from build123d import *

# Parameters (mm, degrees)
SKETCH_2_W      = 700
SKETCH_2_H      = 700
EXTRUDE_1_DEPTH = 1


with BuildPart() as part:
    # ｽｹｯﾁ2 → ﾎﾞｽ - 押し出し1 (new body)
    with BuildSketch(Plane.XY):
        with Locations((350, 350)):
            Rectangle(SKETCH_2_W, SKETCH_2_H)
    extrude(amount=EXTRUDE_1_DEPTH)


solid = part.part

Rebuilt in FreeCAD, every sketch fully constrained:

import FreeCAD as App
import Part
import Sketcher
Q = App.Units.Quantity


def add_polygon(sketch, points):
    """Adds a closed chain of lines whose ends are joined by coincident constraints."""
    first, n = sketch.GeometryCount, len(points)
    for a, b in zip(points, points[1:] + points[:1]):
        sketch.addGeometry(Part.LineSegment(App.Vector(*a, 0), App.Vector(*b, 0)), False)
    for i in range(n):
        sketch.addConstraint(Sketcher.Constraint("Coincident", first + i, 2, first + (i + 1) % n, 1))

doc = App.newDocument("Part")
body = doc.addObject("PartDesign::Body", "Body")

# Sketch on XY plane
sketch1 = doc.addObject("Sketcher::SketchObject", "Sketch")
body.addObject(sketch1)
sketch1.AttachmentSupport = (doc.XY_Plane, [""])
sketch1.MapMode = "FlatFace"
add_polygon(sketch1, [(0, 700), (0, 0), (700, 0), (700, 700)])  # lines 0-3
sketch1.addConstraint(Sketcher.Constraint("Vertical", 0))
sketch1.addConstraint(Sketcher.Constraint("Horizontal", 1))
sketch1.addConstraint(Sketcher.Constraint("Vertical", 2))
sketch1.addConstraint(Sketcher.Constraint("Horizontal", 3))
sketch1.addConstraint(Sketcher.Constraint("Coincident", 0, 2, -1, 1))
sketch1.addConstraint(Sketcher.Constraint("Equal", 3, 0))
sketch1.addConstraint(Sketcher.Constraint("DistanceX", 1, 1, 1, 2, Q("700 mm")))
pad1 = doc.addObject("PartDesign::Pad", "Pad")
body.addObject(pad1)
pad1.Profile = sketch1
pad1.Length = 1

doc.recompute()
